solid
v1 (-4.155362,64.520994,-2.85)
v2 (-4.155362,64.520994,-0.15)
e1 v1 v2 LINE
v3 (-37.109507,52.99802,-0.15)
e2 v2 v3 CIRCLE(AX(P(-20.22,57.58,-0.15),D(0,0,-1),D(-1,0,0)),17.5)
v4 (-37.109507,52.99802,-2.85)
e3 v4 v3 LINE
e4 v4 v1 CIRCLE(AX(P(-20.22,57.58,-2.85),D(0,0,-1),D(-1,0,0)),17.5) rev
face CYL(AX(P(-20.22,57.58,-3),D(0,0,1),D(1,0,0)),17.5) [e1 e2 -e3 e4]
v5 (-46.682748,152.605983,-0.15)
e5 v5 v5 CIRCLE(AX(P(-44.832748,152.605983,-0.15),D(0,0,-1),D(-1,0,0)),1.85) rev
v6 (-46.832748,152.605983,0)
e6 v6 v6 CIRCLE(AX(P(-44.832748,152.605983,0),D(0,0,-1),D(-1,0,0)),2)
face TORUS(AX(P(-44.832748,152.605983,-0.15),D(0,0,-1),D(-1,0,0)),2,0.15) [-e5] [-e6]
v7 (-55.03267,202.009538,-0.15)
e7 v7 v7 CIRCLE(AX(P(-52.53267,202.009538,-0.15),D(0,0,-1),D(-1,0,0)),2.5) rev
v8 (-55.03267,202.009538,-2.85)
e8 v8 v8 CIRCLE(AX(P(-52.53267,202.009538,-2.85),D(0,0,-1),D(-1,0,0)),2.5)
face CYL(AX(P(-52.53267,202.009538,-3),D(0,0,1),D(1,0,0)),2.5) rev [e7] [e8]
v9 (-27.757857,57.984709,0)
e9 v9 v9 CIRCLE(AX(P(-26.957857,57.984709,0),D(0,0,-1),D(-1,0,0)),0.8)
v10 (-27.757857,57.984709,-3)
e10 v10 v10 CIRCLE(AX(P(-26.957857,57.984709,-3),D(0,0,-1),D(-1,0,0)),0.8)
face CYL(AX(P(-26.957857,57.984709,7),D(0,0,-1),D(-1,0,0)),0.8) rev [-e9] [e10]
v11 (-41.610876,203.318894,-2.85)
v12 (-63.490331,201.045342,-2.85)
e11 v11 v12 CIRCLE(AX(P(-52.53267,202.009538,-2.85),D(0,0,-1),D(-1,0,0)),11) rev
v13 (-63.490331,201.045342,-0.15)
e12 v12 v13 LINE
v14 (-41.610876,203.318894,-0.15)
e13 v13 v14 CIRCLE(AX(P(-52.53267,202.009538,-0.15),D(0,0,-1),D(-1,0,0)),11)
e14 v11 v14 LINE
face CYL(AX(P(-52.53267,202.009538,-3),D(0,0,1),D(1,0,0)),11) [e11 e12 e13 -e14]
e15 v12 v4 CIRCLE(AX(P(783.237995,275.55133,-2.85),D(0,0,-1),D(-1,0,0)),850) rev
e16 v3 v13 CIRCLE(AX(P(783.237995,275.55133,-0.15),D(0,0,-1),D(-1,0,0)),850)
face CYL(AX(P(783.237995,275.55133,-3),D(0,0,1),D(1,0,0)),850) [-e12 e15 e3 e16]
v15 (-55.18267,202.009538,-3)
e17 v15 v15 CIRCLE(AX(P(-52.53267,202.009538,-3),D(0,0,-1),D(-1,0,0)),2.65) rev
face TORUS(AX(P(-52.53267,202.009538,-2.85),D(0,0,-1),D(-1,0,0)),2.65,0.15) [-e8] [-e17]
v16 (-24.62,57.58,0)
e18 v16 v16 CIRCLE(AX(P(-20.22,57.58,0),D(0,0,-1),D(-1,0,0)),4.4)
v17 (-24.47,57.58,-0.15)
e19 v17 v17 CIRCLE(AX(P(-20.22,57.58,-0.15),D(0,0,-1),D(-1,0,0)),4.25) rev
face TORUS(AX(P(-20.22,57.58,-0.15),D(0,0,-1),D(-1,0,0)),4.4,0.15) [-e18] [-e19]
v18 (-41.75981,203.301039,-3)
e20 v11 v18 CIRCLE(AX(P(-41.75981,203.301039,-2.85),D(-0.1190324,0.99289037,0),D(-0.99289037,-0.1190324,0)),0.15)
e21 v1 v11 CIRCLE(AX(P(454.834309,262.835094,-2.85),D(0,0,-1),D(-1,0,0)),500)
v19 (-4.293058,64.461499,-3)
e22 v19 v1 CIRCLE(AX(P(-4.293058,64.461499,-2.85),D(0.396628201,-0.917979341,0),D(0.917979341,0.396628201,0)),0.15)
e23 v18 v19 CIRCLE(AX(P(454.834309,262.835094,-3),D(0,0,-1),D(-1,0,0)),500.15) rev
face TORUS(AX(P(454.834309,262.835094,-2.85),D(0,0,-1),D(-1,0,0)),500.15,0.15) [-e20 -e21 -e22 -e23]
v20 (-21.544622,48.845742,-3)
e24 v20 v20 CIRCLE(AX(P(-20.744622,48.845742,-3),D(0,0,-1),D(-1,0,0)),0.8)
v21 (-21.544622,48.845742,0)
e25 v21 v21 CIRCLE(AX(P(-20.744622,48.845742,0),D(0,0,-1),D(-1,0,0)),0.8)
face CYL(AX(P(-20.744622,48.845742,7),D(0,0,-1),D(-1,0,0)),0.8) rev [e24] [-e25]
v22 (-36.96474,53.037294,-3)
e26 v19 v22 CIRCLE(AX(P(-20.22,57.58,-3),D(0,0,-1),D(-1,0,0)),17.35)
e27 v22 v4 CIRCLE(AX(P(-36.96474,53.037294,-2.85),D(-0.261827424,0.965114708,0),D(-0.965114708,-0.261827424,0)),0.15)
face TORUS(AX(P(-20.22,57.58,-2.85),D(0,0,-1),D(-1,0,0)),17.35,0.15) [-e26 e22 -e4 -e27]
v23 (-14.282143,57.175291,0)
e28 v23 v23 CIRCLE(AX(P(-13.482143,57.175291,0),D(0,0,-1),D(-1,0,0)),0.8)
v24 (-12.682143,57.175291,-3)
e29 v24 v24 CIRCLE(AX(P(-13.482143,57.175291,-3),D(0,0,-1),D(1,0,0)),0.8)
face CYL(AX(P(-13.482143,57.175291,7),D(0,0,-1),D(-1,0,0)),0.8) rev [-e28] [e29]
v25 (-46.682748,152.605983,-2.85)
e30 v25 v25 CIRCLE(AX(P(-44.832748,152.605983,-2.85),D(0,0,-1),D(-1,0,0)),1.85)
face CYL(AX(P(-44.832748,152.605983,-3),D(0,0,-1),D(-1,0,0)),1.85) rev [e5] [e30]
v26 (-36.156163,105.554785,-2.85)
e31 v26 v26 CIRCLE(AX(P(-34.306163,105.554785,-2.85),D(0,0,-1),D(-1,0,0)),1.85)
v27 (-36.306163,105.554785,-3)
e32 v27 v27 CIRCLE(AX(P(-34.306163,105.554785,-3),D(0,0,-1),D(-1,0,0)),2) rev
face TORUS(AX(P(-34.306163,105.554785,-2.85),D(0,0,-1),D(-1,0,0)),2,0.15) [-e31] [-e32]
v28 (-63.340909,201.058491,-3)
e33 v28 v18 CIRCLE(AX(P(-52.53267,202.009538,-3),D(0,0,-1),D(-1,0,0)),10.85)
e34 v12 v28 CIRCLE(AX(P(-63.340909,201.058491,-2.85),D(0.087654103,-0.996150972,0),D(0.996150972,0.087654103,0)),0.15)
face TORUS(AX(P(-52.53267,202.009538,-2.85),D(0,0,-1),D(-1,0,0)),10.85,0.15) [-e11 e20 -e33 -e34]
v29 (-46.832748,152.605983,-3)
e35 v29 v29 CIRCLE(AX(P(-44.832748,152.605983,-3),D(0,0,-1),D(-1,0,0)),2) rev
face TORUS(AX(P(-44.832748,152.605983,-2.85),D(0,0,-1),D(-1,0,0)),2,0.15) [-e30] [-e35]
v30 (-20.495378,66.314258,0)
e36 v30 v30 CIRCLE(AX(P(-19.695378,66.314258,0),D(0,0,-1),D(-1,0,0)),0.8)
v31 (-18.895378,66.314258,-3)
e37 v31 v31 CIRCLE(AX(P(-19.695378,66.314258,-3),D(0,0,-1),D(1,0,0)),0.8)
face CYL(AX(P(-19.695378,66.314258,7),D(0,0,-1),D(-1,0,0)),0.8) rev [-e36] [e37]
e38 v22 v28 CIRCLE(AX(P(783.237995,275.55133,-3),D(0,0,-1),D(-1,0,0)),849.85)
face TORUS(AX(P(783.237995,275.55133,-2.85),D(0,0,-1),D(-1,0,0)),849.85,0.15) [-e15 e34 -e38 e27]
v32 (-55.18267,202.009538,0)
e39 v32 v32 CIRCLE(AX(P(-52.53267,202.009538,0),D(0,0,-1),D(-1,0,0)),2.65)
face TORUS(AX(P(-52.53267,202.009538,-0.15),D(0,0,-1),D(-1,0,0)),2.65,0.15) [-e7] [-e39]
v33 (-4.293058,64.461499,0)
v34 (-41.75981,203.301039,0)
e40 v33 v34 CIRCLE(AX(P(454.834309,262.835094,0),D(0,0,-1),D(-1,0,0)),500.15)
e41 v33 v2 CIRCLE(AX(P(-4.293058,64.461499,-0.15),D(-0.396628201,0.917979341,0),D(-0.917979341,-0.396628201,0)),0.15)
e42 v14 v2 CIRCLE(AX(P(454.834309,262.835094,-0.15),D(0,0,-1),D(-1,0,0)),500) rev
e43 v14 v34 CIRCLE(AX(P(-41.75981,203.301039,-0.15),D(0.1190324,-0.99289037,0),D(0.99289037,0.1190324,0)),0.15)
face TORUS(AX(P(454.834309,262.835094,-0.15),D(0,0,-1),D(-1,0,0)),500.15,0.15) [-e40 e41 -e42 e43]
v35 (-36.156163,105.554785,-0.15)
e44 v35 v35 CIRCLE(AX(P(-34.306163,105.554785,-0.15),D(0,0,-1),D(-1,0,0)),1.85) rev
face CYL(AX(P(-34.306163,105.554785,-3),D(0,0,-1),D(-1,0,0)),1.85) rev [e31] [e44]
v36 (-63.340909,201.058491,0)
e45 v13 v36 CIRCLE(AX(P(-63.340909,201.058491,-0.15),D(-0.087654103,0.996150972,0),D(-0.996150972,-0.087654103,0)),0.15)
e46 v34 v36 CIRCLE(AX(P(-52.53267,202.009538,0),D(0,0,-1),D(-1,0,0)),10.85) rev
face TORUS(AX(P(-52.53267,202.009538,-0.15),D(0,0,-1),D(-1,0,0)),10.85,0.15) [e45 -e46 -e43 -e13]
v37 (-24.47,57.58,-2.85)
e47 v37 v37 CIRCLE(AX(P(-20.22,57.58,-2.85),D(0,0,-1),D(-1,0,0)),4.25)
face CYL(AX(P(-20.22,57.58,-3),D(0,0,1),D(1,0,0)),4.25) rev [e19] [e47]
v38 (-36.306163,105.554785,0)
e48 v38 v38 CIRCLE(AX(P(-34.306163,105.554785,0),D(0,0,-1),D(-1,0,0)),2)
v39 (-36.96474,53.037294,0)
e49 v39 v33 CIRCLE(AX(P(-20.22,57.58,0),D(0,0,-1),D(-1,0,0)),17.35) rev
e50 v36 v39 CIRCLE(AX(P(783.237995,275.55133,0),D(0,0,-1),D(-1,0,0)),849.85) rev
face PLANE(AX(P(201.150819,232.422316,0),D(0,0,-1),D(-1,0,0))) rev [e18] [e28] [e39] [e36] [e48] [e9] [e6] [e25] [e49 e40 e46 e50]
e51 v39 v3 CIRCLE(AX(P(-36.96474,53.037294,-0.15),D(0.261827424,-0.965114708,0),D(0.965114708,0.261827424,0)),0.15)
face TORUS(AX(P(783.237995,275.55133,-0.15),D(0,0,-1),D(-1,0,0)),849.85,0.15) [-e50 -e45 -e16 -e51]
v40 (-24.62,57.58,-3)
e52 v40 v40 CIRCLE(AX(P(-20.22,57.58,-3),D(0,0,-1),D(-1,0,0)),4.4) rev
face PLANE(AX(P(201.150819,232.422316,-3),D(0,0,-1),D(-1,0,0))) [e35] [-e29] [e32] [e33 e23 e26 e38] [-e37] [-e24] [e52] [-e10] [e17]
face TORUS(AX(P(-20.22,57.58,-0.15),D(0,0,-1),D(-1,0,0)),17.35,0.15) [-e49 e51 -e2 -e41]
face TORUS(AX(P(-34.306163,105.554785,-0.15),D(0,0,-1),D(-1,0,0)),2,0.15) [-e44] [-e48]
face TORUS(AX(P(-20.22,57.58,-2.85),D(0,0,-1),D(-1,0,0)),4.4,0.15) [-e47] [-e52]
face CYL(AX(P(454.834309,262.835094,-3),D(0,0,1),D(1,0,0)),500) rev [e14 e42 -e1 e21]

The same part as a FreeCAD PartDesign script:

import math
import FreeCAD as App
import Part
import Sketcher

V = App.Vector


def edges_at(feature, points):
    """Names of the edges that pass closest to the given points."""
    edges = feature.Shape.Edges
    near = lambda p: min(range(len(edges)), key=lambda i: edges[i].distToShape(Part.Vertex(*p))[0])
    return sorted({f"Edge{near(p) + 1}" for p in points})

doc = App.newDocument("Part")
body = doc.addObject("PartDesign::Body", "Body")

# Sketch on XY plane
sketch1 = doc.addObject("Sketcher::SketchObject", "Sketch")
body.addObject(sketch1)
sketch1.AttachmentSupport = (doc.XY_Plane, [""])
sketch1.MapMode = "FlatFace"
sketch1.addGeometry(Part.ArcOfCircle(Part.Circle(V(454.8, 262.8, 0), V(0, 0, 1), 500), math.radians(-173.16), math.radians(-156.63)), False)
sketch1.addGeometry(Part.ArcOfCircle(Part.Circle(V(-52.5, 202, 0), V(0, 0, 1), 11), math.radians(7), math.radians(185)), False)
sketch1.addGeometry(Part.ArcOfCircle(Part.Circle(V(783.2, 275.6, 0), V(0, 0, 1), 850), math.radians(-174.97), math.radians(-164.82)), False)
sketch1.addGeometry(Part.ArcOfCircle(Part.Circle(V(-20.2, 57.6, 0), V(0, 0, 1), 17.5), math.radians(-165), math.radians(23)), False)
sketch1.addGeometry(Part.Circle(V(-20.2, 57.6, 0), V(0, 0, 1), 4.2), False)
sketch1.addGeometry(Part.Circle(V(-52.5, 202, 0), V(0, 0, 1), 2.5), False)
sketch1.addConstraint(Sketcher.Constraint("Tangent", 0, 1, 1, 1))
sketch1.addConstraint(Sketcher.Constraint("Tangent", 1, 2, 2, 1))
sketch1.addConstraint(Sketcher.Constraint("Tangent", 2, 2, 3, 1))
sketch1.addConstraint(Sketcher.Constraint("Tangent", 3, 2, 0, 2))
sketch1.addConstraint(Sketcher.Constraint("Coincident", 4, 3, 3, 3))
sketch1.addConstraint(Sketcher.Constraint("Coincident", 5, 3, 1, 3))
sketch1.addConstraint(Sketcher.Constraint("Diameter", 5, 5.0))
sketch1.addConstraint(Sketcher.Constraint("Radius", 0, 500.0))
sketch1.addConstraint(Sketcher.Constraint("Radius", 1, 11.0))
sketch1.addConstraint(Sketcher.Constraint("Radius", 2, 850.0))
sketch1.addConstraint(Sketcher.Constraint("Diameter", 4, 8.5))
sketch1.addConstraint(Sketcher.Constraint("Radius", 3, 17.5))
sketch1.addConstraint(Sketcher.Constraint("DistanceX", 3, 3, -1, 1, 20.22))
sketch1.addConstraint(Sketcher.Constraint("DistanceY", -1, 1, 3, 3, 57.58))
sketch1.addConstraint(Sketcher.Constraint("DistanceX", -1, 1, 0, 3, 454.834309))
sketch1.addConstraint(Sketcher.Constraint("DistanceX", 1, 3, -1, 1, 52.53267))
pad1 = doc.addObject("PartDesign::Pad", "Pad")
body.addObject(pad1)
pad1.Profile = sketch1
pad1.Length = 3
pad1.Reversed = True

# Sketch on XY plane
sketch2 = doc.addObject("Sketcher::SketchObject", "Sketch001")
body.addObject(sketch2)
sketch2.AttachmentSupport = (doc.XY_Plane, [""])
sketch2.MapMode = "FlatFace"
sketch2.AttachmentOffset = App.Placement(V(0, 0, -3), App.Rotation())
sketch2.addGeometry(Part.Circle(V(-44.8, 152.6, 0), V(0, 0, 1), 1.9), False)
sketch2.addGeometry(Part.Circle(V(-34.3, 105.6, 0), V(0, 0, 1), 1.9), False)
sketch2.addConstraint(Sketcher.Constraint("Equal", 0, 1))
sketch2.addConstraint(Sketcher.Constraint("Diameter", 0, 3.7))
sketch2.addConstraint(Sketcher.Constraint("DistanceX", 0, 3, -1, 1, 44.832748))
sketch2.addConstraint(Sketcher.Constraint("DistanceY", -1, 1, 0, 3, 152.605983))
sketch2.addConstraint(Sketcher.Constraint("DistanceX", 1, 3, -1, 1, 34.306163))
sketch2.addConstraint(Sketcher.Constraint("DistanceY", -1, 1, 1, 3, 105.554785))
doc.recompute()
hole = doc.addObject("PartDesign::Hole", "Hole")
body.addObject(hole)
hole.Profile = sketch2
hole.ThreadType = "None"
hole.Diameter = 3.7
hole.DepthType = "ThroughAll"
hole.Reversed = True
doc.recompute()

fillet = doc.addObject("PartDesign::Fillet", "Fillet")
body.addObject(fillet)
fillet.Base = (hole, edges_at(hole, [
    (-55.033, 202.01, -3),
    (-55.033, 202.01, 0),
    (-14.444, 41.061, -3),
    (-24.47, 57.58, -3),
    (-24.47, 57.58, 0),
    (-27.898, 132.567, -3),
    (-36.156, 105.555, -3),
    (-36.156, 105.555, 0),
    (-46.683, 152.606, -3),
    (-46.683, 152.606, 0),
    (-53.67, 212.951, -3),
    (-27.898, 132.567, 0),
    (-14.444, 41.061, 0),
    (-53.58, 126.437, 0),
    (-53.67, 212.951, 0),
    (-53.58, 126.437, -3),
]))
fillet.Radius = 0.15

# Sketch on XY plane
sketch3 = doc.addObject("Sketcher::SketchObject", "Sketch002")
body.addObject(sketch3)
sketch3.AttachmentSupport = (doc.XY_Plane, [""])
sketch3.MapMode = "FlatFace"
sketch3.AttachmentOffset = App.Placement(V(0, 0, -3), App.Rotation())
sketch3.addGeometry(Part.Circle(V(-27, 58, 0), V(0, 0, 1), 0.8), False)
sketch3.addGeometry(Part.Circle(V(-20.7, 48.8, 0), V(0, 0, 1), 0.8), False)
sketch3.addGeometry(Part.Circle(V(-13.5, 57.2, 0), V(0, 0, 1), 0.8), False)
sketch3.addGeometry(Part.Circle(V(-19.7, 66.3, 0), V(0, 0, 1), 0.8), False)
sketch3.addConstraint(Sketcher.Constraint("Equal", 0, 1))
sketch3.addConstraint(Sketcher.Constraint("Equal", 1, 2))
sketch3.addConstraint(Sketcher.Constraint("Equal", 2, 3))
sketch3.addConstraint(Sketcher.Constraint("Diameter", 0, 1.6))
sketch3.addConstraint(Sketcher.Constraint("DistanceY", -1, 1, 0, 3, 57.984709))
sketch3.addConstraint(Sketcher.Constraint("DistanceY", -1, 1, 1, 3, 48.845742))
sketch3.addConstraint(Sketcher.Constraint("DistanceY", -1, 1, 2, 3, 57.175291))
sketch3.addConstraint(Sketcher.Constraint("DistanceY", -1, 1, 3, 3, 66.314258))
sketch3.addConstraint(Sketcher.Constraint("DistanceX", 1, 3, 2, 3, 7.262479))
sketch3.addConstraint(Sketcher.Constraint("DistanceX", 0, 3, 3, 3, 7.262479))
sketch3.addConstraint(Sketcher.Constraint("DistanceX", 0, 3, -1, 1, 26.957857))
sketch3.addConstraint(Sketcher.Constraint("DistanceX", 1, 3, -1, 1, 20.744622))
pocket1 = doc.addObject("PartDesign::Pocket", "Pocket")
body.addObject(pocket1)
pocket1.Profile = sketch3
pocket1.Length = 10
pocket1.Reversed = True

doc.recompute()
